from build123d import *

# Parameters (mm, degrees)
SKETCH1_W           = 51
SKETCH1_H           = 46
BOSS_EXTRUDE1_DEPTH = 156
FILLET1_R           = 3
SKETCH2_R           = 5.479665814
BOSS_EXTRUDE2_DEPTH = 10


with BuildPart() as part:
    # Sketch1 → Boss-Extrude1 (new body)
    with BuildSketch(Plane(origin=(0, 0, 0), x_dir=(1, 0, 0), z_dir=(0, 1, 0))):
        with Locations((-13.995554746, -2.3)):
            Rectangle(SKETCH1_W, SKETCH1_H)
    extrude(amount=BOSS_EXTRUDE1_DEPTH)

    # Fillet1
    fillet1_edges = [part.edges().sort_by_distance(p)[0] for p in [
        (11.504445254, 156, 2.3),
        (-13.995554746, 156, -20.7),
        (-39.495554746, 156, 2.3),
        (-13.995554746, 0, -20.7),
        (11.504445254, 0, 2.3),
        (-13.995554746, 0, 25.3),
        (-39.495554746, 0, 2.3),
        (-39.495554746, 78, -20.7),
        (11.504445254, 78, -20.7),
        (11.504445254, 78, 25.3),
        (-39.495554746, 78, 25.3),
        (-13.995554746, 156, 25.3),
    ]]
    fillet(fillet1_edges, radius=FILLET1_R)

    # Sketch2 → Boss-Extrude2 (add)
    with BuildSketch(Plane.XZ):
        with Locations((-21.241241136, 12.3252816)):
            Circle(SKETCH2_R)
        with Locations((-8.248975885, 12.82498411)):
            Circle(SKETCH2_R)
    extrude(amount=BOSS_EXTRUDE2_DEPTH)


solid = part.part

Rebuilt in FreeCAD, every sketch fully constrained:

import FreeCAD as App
import Part
import Sketcher
Q = App.Units.Quantity


def add_polygon(sketch, points):
    """Adds a closed chain of lines whose ends are joined by coincident constraints."""
    first, n = sketch.GeometryCount, len(points)
    for a, b in zip(points, points[1:] + points[:1]):
        sketch.addGeometry(Part.LineSegment(App.Vector(*a, 0), App.Vector(*b, 0)), False)
    for i in range(n):
        sketch.addConstraint(Sketcher.Constraint("Coincident", first + i, 2, first + (i + 1) % n, 1))

doc = App.newDocument("Part")
body = doc.addObject("PartDesign::Body", "Body")

sketch1 = body.newObject("Sketcher::SketchObject", "Sketch")
sketch1.AttachmentSupport = (doc.getObject("XZ_Plane"), [""])
sketch1.MapMode = "FlatFace"
add_polygon(sketch1, [(-39, -21), (-39, 25), (12, 25), (12, -21)])
sketch1.addConstraint([
    Sketcher.Constraint("Vertical", 0),
    Sketcher.Constraint("Horizontal", 1),
    Sketcher.Constraint("Vertical", 2),
    Sketcher.Constraint("Horizontal", 3),
    Sketcher.Constraint("DistanceX", 1, 1, 1, 2, Q("51 mm")),
    Sketcher.Constraint("DistanceY", 0, 1, 0, 2, Q("46 mm")),
    Sketcher.Constraint("DistanceY", -1, 1, 0, 2, Q("25.3 mm")),
    Sketcher.Constraint("DistanceX", 0, 2, -1, 1, Q("39.495555 mm")),
])
pad1 = body.newObject("PartDesign::Pad", "Pad")
pad1.Profile = sketch1
pad1.Length = 156
pad1.Reversed = True
doc.recompute()

fillet = body.newObject("PartDesign::Fillet", "Fillet")
fillet.Base = (pad1, ["Edge1"])
fillet.UseAllEdges = True
fillet.Radius = 3

sketch2 = body.newObject("Sketcher::SketchObject", "Sketch001")
sketch2.AttachmentSupport = (doc.getObject("XZ_Plane"), [""])
sketch2.MapMode = "FlatFace"
sketch2.addGeometry([
    Part.Circle(App.Vector(-21, 12, 0), App.Vector(0, 0, 1), 5),
    Part.Circle(App.Vector(-8, 13, 0), App.Vector(0, 0, 1), 5),
], False)
sketch2.addConstraint([
    Sketcher.Constraint("Equal", 0, 1),
    Sketcher.Constraint("Diameter", 0, Q("10.959332 mm")),
    Sketcher.Constraint("DistanceX", 0, 3, -1, 1, Q("21.241241 mm")),
    Sketcher.Constraint("DistanceY", -1, 1, 0, 3, Q("12.325282 mm")),
    Sketcher.Constraint("DistanceX", 1, 3, -1, 1, Q("8.248976 mm")),
    Sketcher.Constraint("DistanceY", -1, 1, 1, 3, Q("12.824984 mm")),
])
pad2 = body.newObject("PartDesign::Pad", "Pad001")
pad2.Profile = sketch2
pad2.Length = 10

doc.recompute()
